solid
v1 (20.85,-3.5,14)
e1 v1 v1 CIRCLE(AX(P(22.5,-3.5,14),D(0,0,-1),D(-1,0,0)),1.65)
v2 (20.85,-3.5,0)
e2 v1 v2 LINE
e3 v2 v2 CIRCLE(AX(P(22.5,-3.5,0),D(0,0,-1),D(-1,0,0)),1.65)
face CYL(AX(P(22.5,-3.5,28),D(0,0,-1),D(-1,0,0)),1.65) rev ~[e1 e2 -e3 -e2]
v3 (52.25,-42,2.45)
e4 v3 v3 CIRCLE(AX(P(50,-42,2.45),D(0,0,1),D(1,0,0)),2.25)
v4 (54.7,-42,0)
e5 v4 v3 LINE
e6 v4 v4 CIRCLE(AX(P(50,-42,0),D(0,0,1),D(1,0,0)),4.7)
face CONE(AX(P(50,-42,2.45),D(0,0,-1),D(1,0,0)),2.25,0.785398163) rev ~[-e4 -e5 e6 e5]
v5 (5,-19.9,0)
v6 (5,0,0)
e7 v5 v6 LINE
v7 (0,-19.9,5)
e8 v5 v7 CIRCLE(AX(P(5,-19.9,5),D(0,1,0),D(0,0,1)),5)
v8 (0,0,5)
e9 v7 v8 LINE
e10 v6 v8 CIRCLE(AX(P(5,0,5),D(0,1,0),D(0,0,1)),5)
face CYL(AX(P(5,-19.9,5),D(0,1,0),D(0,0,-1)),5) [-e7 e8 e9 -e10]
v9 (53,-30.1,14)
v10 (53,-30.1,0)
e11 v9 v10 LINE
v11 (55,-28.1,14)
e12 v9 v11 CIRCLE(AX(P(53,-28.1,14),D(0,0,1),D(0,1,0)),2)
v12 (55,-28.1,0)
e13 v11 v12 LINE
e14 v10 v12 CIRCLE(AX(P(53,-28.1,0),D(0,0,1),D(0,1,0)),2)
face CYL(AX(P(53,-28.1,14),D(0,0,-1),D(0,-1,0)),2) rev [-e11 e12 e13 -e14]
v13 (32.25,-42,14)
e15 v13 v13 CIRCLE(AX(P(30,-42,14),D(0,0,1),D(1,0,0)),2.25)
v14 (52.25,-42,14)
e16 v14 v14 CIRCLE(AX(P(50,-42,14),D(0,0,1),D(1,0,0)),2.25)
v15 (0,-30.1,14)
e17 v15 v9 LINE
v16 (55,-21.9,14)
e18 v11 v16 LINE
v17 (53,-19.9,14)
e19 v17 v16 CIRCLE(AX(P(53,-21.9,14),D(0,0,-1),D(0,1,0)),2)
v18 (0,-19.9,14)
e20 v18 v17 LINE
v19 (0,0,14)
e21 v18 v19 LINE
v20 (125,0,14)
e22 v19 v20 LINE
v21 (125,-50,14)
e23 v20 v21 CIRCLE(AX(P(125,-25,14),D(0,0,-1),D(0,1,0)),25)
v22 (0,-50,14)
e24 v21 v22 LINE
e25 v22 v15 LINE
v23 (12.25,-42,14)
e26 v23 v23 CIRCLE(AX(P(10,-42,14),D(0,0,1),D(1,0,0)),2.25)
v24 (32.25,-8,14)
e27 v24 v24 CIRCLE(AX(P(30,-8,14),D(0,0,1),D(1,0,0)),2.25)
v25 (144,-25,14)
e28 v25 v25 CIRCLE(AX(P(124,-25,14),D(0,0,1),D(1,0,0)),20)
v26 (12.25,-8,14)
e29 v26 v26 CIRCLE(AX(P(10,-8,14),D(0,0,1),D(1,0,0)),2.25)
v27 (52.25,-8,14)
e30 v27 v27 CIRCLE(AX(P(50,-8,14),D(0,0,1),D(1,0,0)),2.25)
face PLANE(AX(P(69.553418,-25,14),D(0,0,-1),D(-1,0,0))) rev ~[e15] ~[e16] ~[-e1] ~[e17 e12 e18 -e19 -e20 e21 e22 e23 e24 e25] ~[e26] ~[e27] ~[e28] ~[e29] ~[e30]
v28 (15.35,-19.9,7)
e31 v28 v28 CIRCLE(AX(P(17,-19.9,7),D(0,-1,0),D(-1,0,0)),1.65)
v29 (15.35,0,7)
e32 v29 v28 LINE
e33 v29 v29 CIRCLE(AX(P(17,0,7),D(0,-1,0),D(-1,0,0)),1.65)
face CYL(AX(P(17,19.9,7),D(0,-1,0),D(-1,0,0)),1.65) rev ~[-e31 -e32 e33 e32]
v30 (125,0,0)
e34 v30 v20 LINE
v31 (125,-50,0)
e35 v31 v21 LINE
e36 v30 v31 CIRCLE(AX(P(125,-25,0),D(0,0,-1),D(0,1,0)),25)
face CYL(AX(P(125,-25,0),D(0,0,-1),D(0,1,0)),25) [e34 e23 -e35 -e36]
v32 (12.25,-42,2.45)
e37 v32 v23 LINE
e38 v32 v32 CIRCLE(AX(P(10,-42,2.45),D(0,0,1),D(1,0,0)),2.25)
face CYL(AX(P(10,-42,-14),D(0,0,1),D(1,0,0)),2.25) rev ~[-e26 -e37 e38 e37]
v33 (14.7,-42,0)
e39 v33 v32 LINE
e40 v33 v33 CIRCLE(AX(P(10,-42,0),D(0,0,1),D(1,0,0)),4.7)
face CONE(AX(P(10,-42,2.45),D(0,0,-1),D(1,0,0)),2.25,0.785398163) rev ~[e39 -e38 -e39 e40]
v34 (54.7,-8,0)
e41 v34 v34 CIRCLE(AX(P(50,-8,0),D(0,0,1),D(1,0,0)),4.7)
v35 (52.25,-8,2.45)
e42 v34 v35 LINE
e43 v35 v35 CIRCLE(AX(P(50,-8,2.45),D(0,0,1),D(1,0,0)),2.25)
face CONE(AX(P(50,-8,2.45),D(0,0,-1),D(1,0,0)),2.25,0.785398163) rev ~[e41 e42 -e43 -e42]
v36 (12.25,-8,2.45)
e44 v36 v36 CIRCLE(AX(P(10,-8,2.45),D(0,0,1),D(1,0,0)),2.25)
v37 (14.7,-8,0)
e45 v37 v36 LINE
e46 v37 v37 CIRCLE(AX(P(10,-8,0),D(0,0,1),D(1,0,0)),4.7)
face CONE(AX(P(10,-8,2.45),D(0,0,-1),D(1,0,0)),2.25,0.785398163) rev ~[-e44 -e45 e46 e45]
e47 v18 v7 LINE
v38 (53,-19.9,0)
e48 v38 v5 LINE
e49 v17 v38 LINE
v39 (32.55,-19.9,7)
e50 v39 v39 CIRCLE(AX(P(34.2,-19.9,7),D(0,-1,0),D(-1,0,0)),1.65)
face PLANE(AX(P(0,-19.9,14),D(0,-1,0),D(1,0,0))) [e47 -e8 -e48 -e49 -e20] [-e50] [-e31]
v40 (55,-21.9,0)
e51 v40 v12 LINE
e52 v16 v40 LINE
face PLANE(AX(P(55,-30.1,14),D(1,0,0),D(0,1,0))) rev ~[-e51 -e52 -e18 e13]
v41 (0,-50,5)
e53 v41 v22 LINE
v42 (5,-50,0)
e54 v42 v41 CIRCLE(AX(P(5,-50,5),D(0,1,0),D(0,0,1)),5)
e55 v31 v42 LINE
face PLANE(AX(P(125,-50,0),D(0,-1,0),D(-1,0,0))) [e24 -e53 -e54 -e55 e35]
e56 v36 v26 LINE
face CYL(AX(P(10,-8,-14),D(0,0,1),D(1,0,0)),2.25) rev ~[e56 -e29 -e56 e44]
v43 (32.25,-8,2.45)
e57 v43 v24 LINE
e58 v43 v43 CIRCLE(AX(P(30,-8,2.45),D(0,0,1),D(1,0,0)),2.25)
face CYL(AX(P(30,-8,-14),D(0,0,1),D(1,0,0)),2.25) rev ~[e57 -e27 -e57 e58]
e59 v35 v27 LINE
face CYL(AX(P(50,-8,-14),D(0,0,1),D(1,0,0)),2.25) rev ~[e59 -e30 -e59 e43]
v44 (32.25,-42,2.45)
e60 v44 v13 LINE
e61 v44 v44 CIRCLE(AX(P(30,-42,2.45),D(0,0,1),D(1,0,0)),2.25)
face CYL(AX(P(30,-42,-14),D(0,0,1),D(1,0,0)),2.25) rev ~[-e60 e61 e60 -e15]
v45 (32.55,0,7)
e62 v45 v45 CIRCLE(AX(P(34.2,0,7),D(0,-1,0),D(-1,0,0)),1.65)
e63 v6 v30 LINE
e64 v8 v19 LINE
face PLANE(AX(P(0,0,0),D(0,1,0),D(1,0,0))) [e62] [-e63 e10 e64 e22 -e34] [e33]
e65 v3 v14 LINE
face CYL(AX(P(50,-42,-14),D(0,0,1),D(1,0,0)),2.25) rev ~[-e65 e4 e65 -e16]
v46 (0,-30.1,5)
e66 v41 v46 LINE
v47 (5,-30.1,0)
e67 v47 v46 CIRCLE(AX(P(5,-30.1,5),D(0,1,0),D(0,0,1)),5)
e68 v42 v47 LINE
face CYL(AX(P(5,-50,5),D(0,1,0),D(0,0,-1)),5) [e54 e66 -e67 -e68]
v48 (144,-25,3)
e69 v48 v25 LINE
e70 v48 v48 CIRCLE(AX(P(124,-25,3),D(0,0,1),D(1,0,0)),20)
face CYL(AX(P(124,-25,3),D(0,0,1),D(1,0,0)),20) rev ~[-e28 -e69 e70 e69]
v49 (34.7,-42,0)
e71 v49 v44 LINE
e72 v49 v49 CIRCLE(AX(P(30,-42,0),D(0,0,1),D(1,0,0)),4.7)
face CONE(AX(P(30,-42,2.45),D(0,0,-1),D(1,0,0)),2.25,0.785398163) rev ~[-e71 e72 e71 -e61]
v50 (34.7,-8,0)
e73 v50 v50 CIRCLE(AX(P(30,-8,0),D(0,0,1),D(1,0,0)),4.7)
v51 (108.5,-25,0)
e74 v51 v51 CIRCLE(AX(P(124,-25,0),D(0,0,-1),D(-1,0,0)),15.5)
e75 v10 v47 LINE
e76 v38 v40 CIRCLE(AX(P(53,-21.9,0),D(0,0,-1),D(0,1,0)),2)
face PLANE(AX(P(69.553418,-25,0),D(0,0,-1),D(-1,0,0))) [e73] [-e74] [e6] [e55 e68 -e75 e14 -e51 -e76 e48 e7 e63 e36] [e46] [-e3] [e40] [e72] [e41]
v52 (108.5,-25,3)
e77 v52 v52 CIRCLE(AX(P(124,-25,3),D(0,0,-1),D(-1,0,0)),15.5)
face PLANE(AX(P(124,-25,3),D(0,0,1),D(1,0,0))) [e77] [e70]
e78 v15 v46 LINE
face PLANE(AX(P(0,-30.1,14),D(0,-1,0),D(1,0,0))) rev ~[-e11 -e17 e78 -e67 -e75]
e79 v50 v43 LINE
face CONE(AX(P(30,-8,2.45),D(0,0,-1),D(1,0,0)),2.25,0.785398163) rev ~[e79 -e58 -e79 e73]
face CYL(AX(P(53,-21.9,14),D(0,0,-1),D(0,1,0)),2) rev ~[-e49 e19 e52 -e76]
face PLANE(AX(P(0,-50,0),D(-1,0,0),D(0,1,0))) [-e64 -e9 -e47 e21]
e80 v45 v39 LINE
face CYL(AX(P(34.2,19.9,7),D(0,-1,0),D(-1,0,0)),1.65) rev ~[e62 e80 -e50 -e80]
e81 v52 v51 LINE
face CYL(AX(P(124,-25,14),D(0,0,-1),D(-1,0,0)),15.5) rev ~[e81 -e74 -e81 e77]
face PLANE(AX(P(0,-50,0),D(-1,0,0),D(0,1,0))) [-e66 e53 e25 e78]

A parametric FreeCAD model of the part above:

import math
import FreeCAD as App
import Part
import Sketcher
from FreeCAD import Vector
Q = App.Units.Quantity


def edges_at(feature, points):
    """Names of the edges that pass closest to the given points."""
    edges = feature.Shape.Edges
    near = lambda p: min(range(len(edges)), key=lambda i: edges[i].distToShape(Part.Vertex(*p))[0])
    return sorted({f"Edge{near(p) + 1}" for p in points})

doc = App.newDocument("Part")
params = doc.addObject("Spreadsheet::Sheet", "Params")
for row, (alias, value) in enumerate([
    ("sketch1_radius", "25 mm"),
    ("sketch1_width", "125 mm"),
    ("pad1_length", "14 mm"),
    ("sketch2_width", "55 mm"),
    ("sketch2_height", "10.2 mm"),
    ("sketch3_diameter", "4.5 mm"),
    ("hole_diameter", "4.5 mm"),
    ("hole_depth", "14 mm"),
    ("sketch4_diameter", "3.3 mm"),
    ("hole2_diameter", "3.3 mm"),
    ("hole2_depth", "14 mm"),
    ("sketch5_diameter", "3.3 mm"),
    ("hole3_diameter", "3.3 mm"),
    ("hole3_depth", "19.9 mm"),
    ("sketch6_diameter", "31 mm"),
    ("hole4_diameter", "31 mm"),
    ("hole4_depth", "14 mm"),
    ("hole4_cbore_diameter", "40 mm"),
    ("hole4_cbore_depth", "11 mm"),
    ("chamfer_size", "2.45 mm"),
    ("fillet_radius", "2 mm"),
    ("fillet2_radius", "5 mm"),
], start=1):
    params.set(f"A{row}", alias)
    params.set(f"B{row}", "=" + value)
    params.setAlias(f"B{row}", alias)

body = doc.addObject("PartDesign::Body", "Body")

sketch1 = body.newObject("Sketcher::SketchObject", "Sketch")
sketch1.AttachmentSupport = (doc.getObject("XY_Plane"), [""])
sketch1.MapMode = "FlatFace"
sketch1.addGeometry(Part.LineSegment(Vector(125, -50, 0), Vector(0, -50, 0)), False)
sketch1.addGeometry(Part.LineSegment(Vector(0, -50, 0), Vector(0, 0, 0)), False)
sketch1.addGeometry(Part.LineSegment(Vector(0, 0, 0), Vector(125, 0, 0)), False)
sketch1.addGeometry(Part.ArcOfCircle(Part.Circle(Vector(125, -25, 0), Vector(0, 0, 1), 25), math.radians(-90), math.radians(90)), False)
sketch1.addConstraint(Sketcher.Constraint("Coincident", 0, 2, 1, 1))
sketch1.addConstraint(Sketcher.Constraint("Coincident", 1, 2, 2, 1))
sketch1.addConstraint(Sketcher.Constraint("Tangent", 2, 2, 3, 2))
sketch1.addConstraint(Sketcher.Constraint("Tangent", 3, 1, 0, 1))
sketch1.addConstraint(Sketcher.Constraint("Horizontal", 0))
sketch1.addConstraint(Sketcher.Constraint("Vertical", 1))
sketch1.addConstraint(Sketcher.Constraint("Horizontal", 2))
sketch1.addConstraint(Sketcher.Constraint("Coincident", 1, 2, -1, 1))
sketch1.addConstraint(Sketcher.Constraint("Radius", 3, Q("25 mm")))
sketch1.addConstraint(Sketcher.Constraint("DistanceX", 0, 2, 0, 1, Q("125 mm")))
sketch1.setExpression("Constraints[8]", "Params.sketch1_radius")
sketch1.setExpression("Constraints[9]", "Params.sketch1_width")
pad1 = body.newObject("PartDesign::Pad", "Pad")
pad1.Profile = sketch1
pad1.setExpression("Length", "Params.pad1_length")

sketch2 = body.newObject("Sketcher::SketchObject", "Sketch001")
sketch2.AttachmentSupport = (doc.getObject("XY_Plane"), [""])
sketch2.MapMode = "FlatFace"
sketch2.AttachmentOffset = App.Placement(Vector(0, 0, 14), App.Rotation())
sketch2.addGeometry(Part.LineSegment(Vector(0, -20, 0), Vector(0, -30, 0)), False)
sketch2.addGeometry(Part.LineSegment(Vector(0, -30, 0), Vector(55, -30, 0)), False)
sketch2.addGeometry(Part.LineSegment(Vector(55, -30, 0), Vector(55, -20, 0)), False)
sketch2.addGeometry(Part.LineSegment(Vector(55, -20, 0), Vector(0, -20, 0)), False)
sketch2.addConstraint(Sketcher.Constraint("Coincident", 0, 2, 1, 1))
sketch2.addConstraint(Sketcher.Constraint("Coincident", 1, 2, 2, 1))
sketch2.addConstraint(Sketcher.Constraint("Coincident", 2, 2, 3, 1))
sketch2.addConstraint(Sketcher.Constraint("Coincident", 3, 2, 0, 1))
sketch2.addConstraint(Sketcher.Constraint("Vertical", 0))
sketch2.addConstraint(Sketcher.Constraint("Horizontal", 1))
sketch2.addConstraint(Sketcher.Constraint("Vertical", 2))
sketch2.addConstraint(Sketcher.Constraint("Horizontal", 3))
sketch2.addConstraint(Sketcher.Constraint("PointOnObject", 0, 2, -2))
sketch2.addConstraint(Sketcher.Constraint("DistanceX", 1, 1, 1, 2, Q("55 mm")))
sketch2.addConstraint(Sketcher.Constraint("DistanceY", 0, 2, 0, 1, Q("10.2 mm")))
sketch2.addConstraint(Sketcher.Constraint("DistanceY", 0, 2, -1, 1, Q("30.1 mm")))
sketch2.setExpression("Constraints[9]", "Params.sketch2_width")
sketch2.setExpression("Constraints[10]", "Params.sketch2_height")
pocket1 = body.newObject("PartDesign::Pocket", "Pocket")
pocket1.Profile = sketch2
pocket1.Type = "ThroughAll"

sketch3 = body.newObject("Sketcher::SketchObject", "Sketch002")
sketch3.AttachmentSupport = (doc.getObject("XY_Plane"), [""])
sketch3.MapMode = "FlatFace"
sketch3.addGeometry(Part.Circle(Vector(10, -8, 0), Vector(0, 0, 1), 2.2), False)
sketch3.addGeometry(Part.Circle(Vector(10, -42, 0), Vector(0, 0, 1), 2.2), False)
sketch3.addGeometry(Part.Circle(Vector(30, -42, 0), Vector(0, 0, 1), 2.2), False)
sketch3.addGeometry(Part.Circle(Vector(30, -8, 0), Vector(0, 0, 1), 2.2), False)
sketch3.addGeometry(Part.Circle(Vector(50, -8, 0), Vector(0, 0, 1), 2.2), False)
sketch3.addGeometry(Part.Circle(Vector(50, -42, 0), Vector(0, 0, 1), 2.2), False)
sketch3.addConstraint(Sketcher.Constraint("Equal", 0, 1))
sketch3.addConstraint(Sketcher.Constraint("Equal", 1, 2))
sketch3.addConstraint(Sketcher.Constraint("Equal", 2, 3))
sketch3.addConstraint(Sketcher.Constraint("Equal", 3, 4))
sketch3.addConstraint(Sketcher.Constraint("Equal", 4, 5))
sketch3.addConstraint(Sketcher.Constraint("Horizontal", 1, 3, 2, 3))
sketch3.addConstraint(Sketcher.Constraint("Horizontal", 0, 3, 3, 3))
sketch3.addConstraint(Sketcher.Constraint("Horizontal", 3, 3, 4, 3))
sketch3.addConstraint(Sketcher.Constraint("Horizontal", 2, 3, 5, 3))
sketch3.addConstraint(Sketcher.Constraint("Vertical", 0, 3, 1, 3))
sketch3.addConstraint(Sketcher.Constraint("Vertical", 2, 3, 3, 3))
sketch3.addConstraint(Sketcher.Constraint("Vertical", 4, 3, 5, 3))
sketch3.addConstraint(Sketcher.Constraint("Diameter", 0, Q("4.5 mm")))
sketch3.addConstraint(Sketcher.Constraint("DistanceX", -1, 1, 0, 3, Q("10 mm")))
sketch3.addConstraint(Sketcher.Constraint("DistanceY", 0, 3, -1, 1, Q("8 mm")))
sketch3.addConstraint(Sketcher.Constraint("DistanceY", 1, 3, -1, 1, Q("42 mm")))
sketch3.addConstraint(Sketcher.Constraint("DistanceX", -1, 1, 2, 3, Q("30 mm")))
sketch3.addConstraint(Sketcher.Constraint("DistanceX", -1, 1, 4, 3, Q("50 mm")))
sketch3.setExpression("Constraints[12]", "Params.sketch3_diameter")
doc.recompute()
hole = body.newObject("PartDesign::Hole", "Hole")
hole.Profile = sketch3
hole.ThreadType = "None"
hole.setExpression("Diameter", "Params.hole_diameter")
hole.DepthType = "Dimension"
hole.setExpression("Depth", "Params.hole_depth")
hole.DrillPoint = "Flat"
hole.Reversed = True

sketch4 = body.newObject("Sketcher::SketchObject", "Sketch003")
sketch4.AttachmentSupport = (doc.getObject("XY_Plane"), [""])
sketch4.MapMode = "FlatFace"
sketch4.AttachmentOffset = App.Placement(Vector(0, 0, 14), App.Rotation())
sketch4.addGeometry(Part.Circle(Vector(22.5, -3.5, 0), Vector(0, 0, 1), 1.6), False)
sketch4.addConstraint(Sketcher.Constraint("Diameter", 0, Q("3.3 mm")))
sketch4.addConstraint(Sketcher.Constraint("DistanceX", -1, 1, 0, 3, Q("22.5 mm")))
sketch4.addConstraint(Sketcher.Constraint("DistanceY", 0, 3, -1, 1, Q("3.5 mm")))
sketch4.setExpression("Constraints[0]", "Params.sketch4_diameter")
doc.recompute()
hole2 = body.newObject("PartDesign::Hole", "Hole001")
hole2.Profile = sketch4
hole2.ThreadType = "None"
hole2.setExpression("Diameter", "Params.hole2_diameter")
hole2.DepthType = "Dimension"
hole2.setExpression("Depth", "Params.hole2_depth")
hole2.DrillPoint = "Flat"

sketch5 = body.newObject("Sketcher::SketchObject", "Sketch004")
sketch5.AttachmentSupport = (doc.getObject("XZ_Plane"), [""])
sketch5.MapMode = "FlatFace"
sketch5.addGeometry(Part.Circle(Vector(17, 7, 0), Vector(0, 0, 1), 1.6), False)
sketch5.addGeometry(Part.Circle(Vector(34.2, 7, 0), Vector(0, 0, 1), 1.6), False)
sketch5.addConstraint(Sketcher.Constraint("Equal", 0, 1))
sketch5.addConstraint(Sketcher.Constraint("Horizontal", 0, 3, 1, 3))
sketch5.addConstraint(Sketcher.Constraint("Diameter", 0, Q("3.3 mm")))
sketch5.addConstraint(Sketcher.Constraint("DistanceX", -1, 1, 0, 3, Q("17 mm")))
sketch5.addConstraint(Sketcher.Constraint("DistanceY", -1, 1, 0, 3, Q("7 mm")))
sketch5.addConstraint(Sketcher.Constraint("DistanceX", -1, 1, 1, 3, Q("34.2 mm")))
sketch5.setExpression("Constraints[2]", "Params.sketch5_diameter")
doc.recompute()
hole3 = body.newObject("PartDesign::Hole", "Hole002")
hole3.Profile = sketch5
hole3.ThreadType = "None"
hole3.setExpression("Diameter", "Params.hole3_diameter")
hole3.DepthType = "Dimension"
hole3.setExpression("Depth", "Params.hole3_depth")
hole3.DrillPoint = "Flat"
hole3.Reversed = True

sketch6 = body.newObject("Sketcher::SketchObject", "Sketch005")
sketch6.AttachmentSupport = (doc.getObject("XY_Plane"), [""])
sketch6.MapMode = "FlatFace"
sketch6.AttachmentOffset = App.Placement(Vector(0, 0, 14), App.Rotation())
sketch6.addGeometry(Part.Circle(Vector(124, -25, 0), Vector(0, 0, 1), 16), False)
sketch6.addConstraint(Sketcher.Constraint("Diameter", 0, Q("31 mm")))
sketch6.addConstraint(Sketcher.Constraint("DistanceX", -1, 1, 0, 3, Q("124 mm")))
sketch6.addConstraint(Sketcher.Constraint("DistanceY", 0, 3, -1, 1, Q("25 mm")))
sketch6.setExpression("Constraints[0]", "Params.sketch6_diameter")
doc.recompute()
hole4 = body.newObject("PartDesign::Hole", "Hole003")
hole4.Profile = sketch6
hole4.ThreadType = "None"
hole4.setExpression("Diameter", "Params.hole4_diameter")
hole4.DepthType = "Dimension"
hole4.setExpression("Depth", "Params.hole4_depth")
hole4.DrillPoint = "Flat"
hole4.HoleCutType = "Counterbore"
hole4.setExpression("HoleCutDiameter", "Params.hole4_cbore_diameter")
hole4.setExpression("HoleCutDepth", "Params.hole4_cbore_depth")
doc.recompute()

chamfer = body.newObject("PartDesign::Chamfer", "Chamfer")
chamfer.Base = (hole4, edges_at(hole4, [
    (47.75, -42, 0),
    (47.75, -8, 0),
    (27.75, -8, 0),
    (27.75, -42, 0),
    (7.75, -42, 0),
    (7.75, -8, 0),
]))
chamfer.setExpression("Size", "Params.chamfer_size")
doc.recompute()

fillet = body.newObject("PartDesign::Fillet", "Fillet")
fillet.Base = (chamfer, edges_at(chamfer, [(55, -19.9, 7), (55, -30.1, 7)]))
fillet.setExpression("Radius", "Params.fillet_radius")
doc.recompute()

fillet2 = body.newObject("PartDesign::Fillet", "Fillet001")
fillet2.Base = (fillet, edges_at(fillet, [(0, -9.95, 0), (0, -40.05, 0)]))
fillet2.setExpression("Radius", "Params.fillet2_radius")

doc.recompute()
